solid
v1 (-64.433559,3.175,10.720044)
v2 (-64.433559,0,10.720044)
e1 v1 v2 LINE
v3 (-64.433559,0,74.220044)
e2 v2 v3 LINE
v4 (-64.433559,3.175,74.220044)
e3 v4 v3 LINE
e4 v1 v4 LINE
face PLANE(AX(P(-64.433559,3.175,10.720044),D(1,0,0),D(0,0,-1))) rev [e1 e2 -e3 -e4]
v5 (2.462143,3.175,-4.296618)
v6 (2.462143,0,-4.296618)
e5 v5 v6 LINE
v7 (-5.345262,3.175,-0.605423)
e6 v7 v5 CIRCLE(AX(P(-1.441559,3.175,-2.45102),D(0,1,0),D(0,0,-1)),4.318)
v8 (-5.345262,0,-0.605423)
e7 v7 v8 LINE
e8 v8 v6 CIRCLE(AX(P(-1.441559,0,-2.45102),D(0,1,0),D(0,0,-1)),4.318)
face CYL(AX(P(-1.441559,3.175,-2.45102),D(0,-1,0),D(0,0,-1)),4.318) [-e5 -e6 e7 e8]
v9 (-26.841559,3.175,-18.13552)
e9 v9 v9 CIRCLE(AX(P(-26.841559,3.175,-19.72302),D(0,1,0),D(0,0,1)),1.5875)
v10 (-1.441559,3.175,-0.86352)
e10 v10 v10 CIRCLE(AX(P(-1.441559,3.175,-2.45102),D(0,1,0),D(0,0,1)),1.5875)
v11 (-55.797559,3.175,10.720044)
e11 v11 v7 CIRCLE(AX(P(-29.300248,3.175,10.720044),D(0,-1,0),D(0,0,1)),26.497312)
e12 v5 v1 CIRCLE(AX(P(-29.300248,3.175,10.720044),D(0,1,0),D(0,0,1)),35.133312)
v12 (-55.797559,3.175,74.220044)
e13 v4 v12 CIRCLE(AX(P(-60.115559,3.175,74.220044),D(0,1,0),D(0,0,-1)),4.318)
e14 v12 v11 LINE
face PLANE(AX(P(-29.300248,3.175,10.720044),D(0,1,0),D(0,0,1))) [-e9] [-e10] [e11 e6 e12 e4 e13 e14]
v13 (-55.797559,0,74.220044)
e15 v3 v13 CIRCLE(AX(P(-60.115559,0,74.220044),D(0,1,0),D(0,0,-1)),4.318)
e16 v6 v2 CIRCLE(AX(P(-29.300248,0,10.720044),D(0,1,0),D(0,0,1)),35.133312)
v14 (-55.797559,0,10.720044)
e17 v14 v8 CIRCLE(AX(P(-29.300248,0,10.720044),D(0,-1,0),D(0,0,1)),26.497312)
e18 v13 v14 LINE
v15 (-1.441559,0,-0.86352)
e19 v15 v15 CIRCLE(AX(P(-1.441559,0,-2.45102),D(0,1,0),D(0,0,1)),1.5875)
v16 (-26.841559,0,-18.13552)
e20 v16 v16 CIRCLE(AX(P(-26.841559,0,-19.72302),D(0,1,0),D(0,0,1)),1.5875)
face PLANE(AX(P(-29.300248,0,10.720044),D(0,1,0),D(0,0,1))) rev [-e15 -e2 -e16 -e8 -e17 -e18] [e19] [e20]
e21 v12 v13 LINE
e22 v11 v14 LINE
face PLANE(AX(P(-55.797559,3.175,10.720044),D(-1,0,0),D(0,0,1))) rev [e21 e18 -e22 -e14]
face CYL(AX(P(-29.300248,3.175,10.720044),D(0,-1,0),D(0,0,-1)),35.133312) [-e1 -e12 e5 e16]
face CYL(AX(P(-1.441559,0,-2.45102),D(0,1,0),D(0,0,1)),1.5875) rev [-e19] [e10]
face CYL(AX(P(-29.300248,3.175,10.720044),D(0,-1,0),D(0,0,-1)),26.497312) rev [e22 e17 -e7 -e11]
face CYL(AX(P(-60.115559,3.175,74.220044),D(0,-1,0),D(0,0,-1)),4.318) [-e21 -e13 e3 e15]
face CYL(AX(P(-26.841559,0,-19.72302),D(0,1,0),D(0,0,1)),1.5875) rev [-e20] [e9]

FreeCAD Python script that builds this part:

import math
import FreeCAD as App
import Part
import Sketcher
Q = App.Units.Quantity

doc = App.newDocument("Part")
body = doc.addObject("PartDesign::Body", "Body")

# Sketch on XZ plane
sketch1 = body.newObject("Sketcher::SketchObject", "Sketch")
sketch1.AttachmentSupport = (doc.getObject("XZ_Plane"), [""])
sketch1.MapMode = "FlatFace"
sketch1.addGeometry([
    Part.LineSegment(App.Vector(-64.4, 10.7, 0), App.Vector(-64.4, 74.2, 0)),  # 0
    Part.ArcOfCircle(Part.Circle(App.Vector(-60.1, 74.2, 0), App.Vector(0, 0, 1), 4.3), math.radians(0), math.radians(180)),  # 1
    Part.LineSegment(App.Vector(-55.8, 74.2, 0), App.Vector(-55.8, 10.7, 0)),  # 2
    Part.ArcOfCircle(Part.Circle(App.Vector(-29.3, 10.7, 0), App.Vector(0, 0, 1), 26.5), math.radians(180), math.radians(335)),  # 3
    Part.ArcOfCircle(Part.Circle(App.Vector(-1.4, -2.5, 0), App.Vector(0, 0, 1), 4.3), math.radians(-25), math.radians(155)),  # 4
    Part.ArcOfCircle(Part.Circle(App.Vector(-29.3, 10.7, 0), App.Vector(0, 0, 1), 35.1), math.radians(180), math.radians(335)),  # 5
], False)
sketch1.addConstraint([
    Sketcher.Constraint("Tangent", 0, 2, 1, 2),
    Sketcher.Constraint("Tangent", 1, 1, 2, 1),
    Sketcher.Constraint("Tangent", 2, 2, 3, 1),
    Sketcher.Constraint("Tangent", 3, 2, 4, 2),
    Sketcher.Constraint("Tangent", 4, 1, 5, 2),
    Sketcher.Constraint("Tangent", 5, 1, 0, 1),
    Sketcher.Constraint("Vertical", 0),
    Sketcher.Constraint("Vertical", 2),
    Sketcher.Constraint("Coincident", 5, 3, 3, 3),
    Sketcher.Constraint("Radius", 1, Q("0.17 in")),
    Sketcher.Constraint("DistanceY", 0, 1, 0, 2, Q("2.5 in")),
    Sketcher.Constraint("DistanceX", 1, 3, 4, 3, Q("2.31 in")),
    Sketcher.Constraint("Radius", 3, 26.497312),
    Sketcher.Constraint("DistanceX", 1, 3, -1, 1, 60.115559),
    Sketcher.Constraint("DistanceY", 4, 3, -1, 1, 2.45102),
])
pad1 = body.newObject("PartDesign::Pad", "Pad")
pad1.Profile = sketch1
pad1.Length = Q("0.125 in")
pad1.Reversed = True

# Sketch on XZ plane
sketch2 = body.newObject("Sketcher::SketchObject", "Sketch001")
sketch2.AttachmentSupport = (doc.getObject("XZ_Plane"), [""])
sketch2.MapMode = "FlatFace"
sketch2.AttachmentOffset = App.Placement(App.Vector(0, 0, -0.125 * 25.4), App.Rotation())
sketch2.addGeometry([
    Part.Circle(App.Vector(-26.8, -19.7, 0), App.Vector(0, 0, 1), 1.6),
    Part.Circle(App.Vector(-1.4, -2.5, 0), App.Vector(0, 0, 1), 1.6),
], False)
sketch2.addConstraint([
    Sketcher.Constraint("Equal", 0, 1),
    Sketcher.Constraint("Diameter", 0, Q("0.125 in")),
    Sketcher.Constraint("DistanceX", 0, 3, 1, 3, Q("1 in")),
    Sketcher.Constraint("DistanceY", 0, 3, 1, 3, Q("0.68 in")),
    Sketcher.Constraint("DistanceX", 0, 3, -1, 1, 26.841559),
    Sketcher.Constraint("DistanceY", 0, 3, -1, 1, 19.72302),
])
pocket1 = body.newObject("PartDesign::Pocket", "Pocket")
pocket1.Profile = sketch2
pocket1.Type = "ThroughAll"
pocket1.Reversed = True

doc.recompute()
